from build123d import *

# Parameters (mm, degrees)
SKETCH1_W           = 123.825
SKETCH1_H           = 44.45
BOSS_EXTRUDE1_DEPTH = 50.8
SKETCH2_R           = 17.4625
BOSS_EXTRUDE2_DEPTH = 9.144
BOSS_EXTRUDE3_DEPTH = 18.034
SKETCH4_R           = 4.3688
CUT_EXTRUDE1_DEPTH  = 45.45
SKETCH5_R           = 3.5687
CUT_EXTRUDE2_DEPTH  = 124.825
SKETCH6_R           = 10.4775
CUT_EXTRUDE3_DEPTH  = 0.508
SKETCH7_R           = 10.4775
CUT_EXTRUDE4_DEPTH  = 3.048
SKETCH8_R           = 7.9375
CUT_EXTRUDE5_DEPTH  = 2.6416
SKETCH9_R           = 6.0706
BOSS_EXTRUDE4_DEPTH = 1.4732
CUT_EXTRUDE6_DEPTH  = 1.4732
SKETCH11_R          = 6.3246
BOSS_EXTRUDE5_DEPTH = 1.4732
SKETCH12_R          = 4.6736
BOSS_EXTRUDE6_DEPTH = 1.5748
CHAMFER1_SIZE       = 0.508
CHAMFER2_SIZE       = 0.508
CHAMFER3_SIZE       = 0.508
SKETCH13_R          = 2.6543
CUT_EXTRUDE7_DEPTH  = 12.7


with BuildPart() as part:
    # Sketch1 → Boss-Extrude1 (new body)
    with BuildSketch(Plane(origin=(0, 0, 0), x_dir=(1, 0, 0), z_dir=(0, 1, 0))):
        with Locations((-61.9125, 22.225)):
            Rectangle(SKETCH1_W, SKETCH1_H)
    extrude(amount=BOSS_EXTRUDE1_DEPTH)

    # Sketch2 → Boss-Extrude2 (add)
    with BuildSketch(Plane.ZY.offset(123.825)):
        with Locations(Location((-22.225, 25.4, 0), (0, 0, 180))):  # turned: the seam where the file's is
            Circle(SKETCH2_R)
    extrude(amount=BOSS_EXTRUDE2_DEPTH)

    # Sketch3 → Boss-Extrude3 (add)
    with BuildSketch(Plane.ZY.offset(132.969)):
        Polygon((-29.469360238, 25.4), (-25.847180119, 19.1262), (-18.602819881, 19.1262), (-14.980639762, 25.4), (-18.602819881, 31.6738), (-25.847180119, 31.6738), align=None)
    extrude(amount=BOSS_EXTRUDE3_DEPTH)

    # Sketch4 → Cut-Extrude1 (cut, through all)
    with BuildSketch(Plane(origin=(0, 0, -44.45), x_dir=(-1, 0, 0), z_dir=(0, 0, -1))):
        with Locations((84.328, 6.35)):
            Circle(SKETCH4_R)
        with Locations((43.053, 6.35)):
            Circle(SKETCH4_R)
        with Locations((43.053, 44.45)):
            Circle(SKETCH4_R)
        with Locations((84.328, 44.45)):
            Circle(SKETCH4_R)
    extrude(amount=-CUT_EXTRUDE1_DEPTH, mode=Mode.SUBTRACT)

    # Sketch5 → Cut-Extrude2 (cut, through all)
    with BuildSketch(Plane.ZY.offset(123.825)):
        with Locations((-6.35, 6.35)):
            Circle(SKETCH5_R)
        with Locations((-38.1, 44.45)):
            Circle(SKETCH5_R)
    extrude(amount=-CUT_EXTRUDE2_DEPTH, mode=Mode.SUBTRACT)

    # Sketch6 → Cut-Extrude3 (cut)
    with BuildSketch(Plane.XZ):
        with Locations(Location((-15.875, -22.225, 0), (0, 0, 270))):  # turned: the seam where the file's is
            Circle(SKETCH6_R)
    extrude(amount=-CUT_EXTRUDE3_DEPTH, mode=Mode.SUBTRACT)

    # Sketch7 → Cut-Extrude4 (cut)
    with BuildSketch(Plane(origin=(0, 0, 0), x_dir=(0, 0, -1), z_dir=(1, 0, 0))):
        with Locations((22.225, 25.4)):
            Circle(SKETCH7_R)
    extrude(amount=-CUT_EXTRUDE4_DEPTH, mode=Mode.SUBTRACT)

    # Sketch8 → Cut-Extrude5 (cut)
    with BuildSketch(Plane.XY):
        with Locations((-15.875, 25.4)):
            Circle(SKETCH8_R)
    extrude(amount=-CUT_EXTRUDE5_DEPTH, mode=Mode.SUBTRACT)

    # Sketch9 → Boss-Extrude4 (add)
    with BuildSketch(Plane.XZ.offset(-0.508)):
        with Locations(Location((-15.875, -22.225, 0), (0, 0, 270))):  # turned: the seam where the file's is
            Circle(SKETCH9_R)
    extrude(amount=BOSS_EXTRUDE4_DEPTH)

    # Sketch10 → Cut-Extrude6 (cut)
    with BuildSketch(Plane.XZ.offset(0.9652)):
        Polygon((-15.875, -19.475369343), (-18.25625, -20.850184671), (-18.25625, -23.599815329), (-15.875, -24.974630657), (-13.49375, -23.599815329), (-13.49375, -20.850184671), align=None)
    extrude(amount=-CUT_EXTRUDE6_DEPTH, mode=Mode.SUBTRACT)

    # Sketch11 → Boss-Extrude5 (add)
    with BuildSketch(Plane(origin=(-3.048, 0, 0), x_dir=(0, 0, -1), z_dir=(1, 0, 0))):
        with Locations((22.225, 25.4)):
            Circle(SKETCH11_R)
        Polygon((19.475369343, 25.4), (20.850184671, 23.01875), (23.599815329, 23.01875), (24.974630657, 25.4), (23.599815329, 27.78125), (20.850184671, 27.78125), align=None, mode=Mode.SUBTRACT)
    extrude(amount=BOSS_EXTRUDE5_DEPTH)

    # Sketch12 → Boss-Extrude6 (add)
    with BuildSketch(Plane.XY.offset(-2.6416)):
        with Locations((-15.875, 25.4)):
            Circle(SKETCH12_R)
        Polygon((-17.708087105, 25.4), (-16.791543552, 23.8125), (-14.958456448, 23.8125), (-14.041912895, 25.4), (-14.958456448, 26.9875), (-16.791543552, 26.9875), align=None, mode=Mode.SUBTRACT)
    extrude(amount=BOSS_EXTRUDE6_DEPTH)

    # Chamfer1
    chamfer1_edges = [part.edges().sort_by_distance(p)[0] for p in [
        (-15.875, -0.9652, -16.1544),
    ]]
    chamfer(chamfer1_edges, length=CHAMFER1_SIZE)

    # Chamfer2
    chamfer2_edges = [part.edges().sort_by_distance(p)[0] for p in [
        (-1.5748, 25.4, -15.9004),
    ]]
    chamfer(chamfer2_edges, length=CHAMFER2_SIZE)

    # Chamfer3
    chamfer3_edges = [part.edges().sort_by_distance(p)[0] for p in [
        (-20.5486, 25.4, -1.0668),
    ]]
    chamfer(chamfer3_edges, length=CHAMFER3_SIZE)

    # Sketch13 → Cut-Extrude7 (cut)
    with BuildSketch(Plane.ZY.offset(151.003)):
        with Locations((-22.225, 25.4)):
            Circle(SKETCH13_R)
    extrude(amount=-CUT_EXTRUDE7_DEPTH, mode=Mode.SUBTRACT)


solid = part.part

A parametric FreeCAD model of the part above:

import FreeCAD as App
import Part
import Sketcher
from FreeCAD import Vector
Q = App.Units.Quantity


def edges_at(feature, points):
    """Names of the edges that pass closest to the given points."""
    edges = feature.Shape.Edges
    near = lambda p: min(range(len(edges)), key=lambda i: edges[i].distToShape(Part.Vertex(*p))[0])
    return sorted({f"Edge{near(p) + 1}" for p in points})


def add_polygon(sketch, points):
    """Adds a closed chain of lines whose ends are joined by coincident constraints."""
    first, n = sketch.GeometryCount, len(points)
    for a, b in zip(points, points[1:] + points[:1]):
        sketch.addGeometry(Part.LineSegment(App.Vector(*a, 0), App.Vector(*b, 0)), False)
    for i in range(n):
        sketch.addConstraint(Sketcher.Constraint("Coincident", first + i, 2, first + (i + 1) % n, 1))

doc = App.newDocument("Part")
body = doc.addObject("PartDesign::Body", "Body")

# Sketch on XZ plane
sketch1 = doc.addObject("Sketcher::SketchObject", "Sketch")
body.addObject(sketch1)
sketch1.AttachmentSupport = (doc.XZ_Plane, [""])
sketch1.MapMode = "FlatFace"
add_polygon(sketch1, [(-124, -44), (-124, 0), (0, 0), (0, -44)])  # lines 0-3
sketch1.addConstraint(Sketcher.Constraint("Vertical", 0))
sketch1.addConstraint(Sketcher.Constraint("Horizontal", 1))
sketch1.addConstraint(Sketcher.Constraint("Vertical", 2))
sketch1.addConstraint(Sketcher.Constraint("Horizontal", 3))
sketch1.addConstraint(Sketcher.Constraint("Coincident", 1, 2, -1, 1))
sketch1.addConstraint(Sketcher.Constraint("DistanceY", 0, 1, 0, 2, Q("1.75 in")))
sketch1.addConstraint(Sketcher.Constraint("DistanceX", 1, 1, 1, 2, Q("4.875 in")))
pad1 = doc.addObject("PartDesign::Pad", "Pad")
body.addObject(pad1)
pad1.Profile = sketch1
pad1.Length = Q("2 in")
pad1.Reversed = True

# Sketch on YZ plane
sketch2 = doc.addObject("Sketcher::SketchObject", "Sketch001")
body.addObject(sketch2)
sketch2.AttachmentSupport = (doc.YZ_Plane, [""])
sketch2.MapMode = "FlatFace"
sketch2.AttachmentOffset = App.Placement(Vector(0, 0, -4.875 * 25.4), App.Rotation())
sketch2.addGeometry(Part.Circle(Vector(25, -22, 0), Vector(0, 0, 1), 17), False)
sketch2.addConstraint(Sketcher.Constraint("Diameter", 0, Q("1.375 in")))
sketch2.addConstraint(Sketcher.Constraint("DistanceX", -1, 1, 0, 3, Q("1 in")))
sketch2.addConstraint(Sketcher.Constraint("DistanceY", 0, 3, -1, 1, Q("0.875 in")))
pad2 = doc.addObject("PartDesign::Pad", "Pad001")
body.addObject(pad2)
pad2.Profile = sketch2
pad2.Length = Q("0.36 in")
pad2.Reversed = True

# Sketch on YZ plane
sketch3 = doc.addObject("Sketcher::SketchObject", "Sketch002")
body.addObject(sketch3)
sketch3.AttachmentSupport = (doc.YZ_Plane, [""])
sketch3.MapMode = "FlatFace"
sketch3.AttachmentOffset = App.Placement(Vector(0, 0, -5.235 * 25.4), App.Rotation())
add_polygon(sketch3, [(25, -29), (19, -26), (19, -19), (25, -15), (32, -19), (32, -26)])  # lines 0-5
sketch3.addConstraint(Sketcher.Constraint("Vertical", 1))
sketch3.addConstraint(Sketcher.Constraint("Vertical", 4))
sketch3.addConstraint(Sketcher.Constraint("Parallel", 0, 3))
sketch3.addConstraint(Sketcher.Constraint("Parallel", 2, 5))
sketch3.addConstraint(Sketcher.Constraint("Horizontal", 1, 2, 3, 2))
sketch3.addConstraint(Sketcher.Constraint("Horizontal", 0, 2, 4, 2))
sketch3.addConstraint(Sketcher.Constraint("Vertical", 2, 2, 5, 2))
sketch3.addConstraint(Sketcher.Constraint("DistanceX", -1, 1, 2, 2, Q("1 in")))
sketch3.addConstraint(Sketcher.Constraint("Angle", 0, Q("150 deg")))
sketch3.addConstraint(Sketcher.Constraint("DistanceX", -1, 1, 0, 2, Q("0.753 in")))
sketch3.addConstraint(Sketcher.Constraint("DistanceY", 1, 1, 1, 2, Q("7.24436 mm")))
sketch3.addConstraint(Sketcher.Constraint("DistanceY", 0, 2, -1, 1, Q("25.84718 mm")))
pad3 = doc.addObject("PartDesign::Pad", "Pad002")
body.addObject(pad3)
pad3.Profile = sketch3
pad3.Length = Q("0.71 in")
pad3.Reversed = True

# Sketch on XY plane
sketch4 = doc.addObject("Sketcher::SketchObject", "Sketch003")
body.addObject(sketch4)
sketch4.AttachmentSupport = (doc.XY_Plane, [""])
sketch4.MapMode = "FlatFace"
sketch4.AttachmentOffset = App.Placement(Vector(0, 0, -1.75 * 25.4), App.Rotation())
sketch4.addGeometry(Part.Circle(Vector(-84.3, 6.3, 0), Vector(0, 0, 1), 4.4), False)
sketch4.addGeometry(Part.Circle(Vector(-43.1, 6.3, 0), Vector(0, 0, 1), 4.4), False)
sketch4.addGeometry(Part.Circle(Vector(-43.1, 44.5, 0), Vector(0, 0, 1), 4.4), False)
sketch4.addGeometry(Part.Circle(Vector(-84.3, 44.5, 0), Vector(0, 0, 1), 4.4), False)
sketch4.addConstraint(Sketcher.Constraint("Equal", 0, 1))
sketch4.addConstraint(Sketcher.Constraint("Equal", 1, 2))
sketch4.addConstraint(Sketcher.Constraint("Equal", 2, 3))
sketch4.addConstraint(Sketcher.Constraint("Horizontal", 0, 3, 1, 3))
sketch4.addConstraint(Sketcher.Constraint("Horizontal", 2, 3, 3, 3))
sketch4.addConstraint(Sketcher.Constraint("Vertical", 1, 3, 2, 3))
sketch4.addConstraint(Sketcher.Constraint("Vertical", 0, 3, 3, 3))
sketch4.addConstraint(Sketcher.Constraint("Diameter", 0, Q("0.344 in")))
sketch4.addConstraint(Sketcher.Constraint("DistanceY", 1, 3, 2, 3, Q("1.5 in")))
sketch4.addConstraint(Sketcher.Constraint("DistanceX", 0, 3, -1, 1, Q("3.32 in")))
sketch4.addConstraint(Sketcher.Constraint("DistanceY", -1, 1, 0, 3, Q("0.25 in")))
sketch4.addConstraint(Sketcher.Constraint("DistanceX", 1, 3, -1, 1, Q("1.695 in")))
pocket1 = doc.addObject("PartDesign::Pocket", "Pocket")
body.addObject(pocket1)
pocket1.Profile = sketch4
pocket1.Type = "ThroughAll"
pocket1.Reversed = True

# Sketch on YZ plane
sketch5 = doc.addObject("Sketcher::SketchObject", "Sketch004")
body.addObject(sketch5)
sketch5.AttachmentSupport = (doc.YZ_Plane, [""])
sketch5.MapMode = "FlatFace"
sketch5.AttachmentOffset = App.Placement(Vector(0, 0, -4.875 * 25.4), App.Rotation())
sketch5.addGeometry(Part.Circle(Vector(6.3, -6.3, 0), Vector(0, 0, 1), 3.6), False)
sketch5.addGeometry(Part.Circle(Vector(44.5, -38.1, 0), Vector(0, 0, 1), 3.6), False)
sketch5.addConstraint(Sketcher.Constraint("Equal", 0, 1))
sketch5.addConstraint(Sketcher.Constraint("Diameter", 0, Q("0.281 in")))
sketch5.addConstraint(Sketcher.Constraint("DistanceY", 1, 3, -1, 1, Q("1.5 in")))
sketch5.addConstraint(Sketcher.Constraint("DistanceX", 0, 3, 1, 3, Q("1.5 in")))
sketch5.addConstraint(Sketcher.Constraint("DistanceX", -1, 1, 0, 3, Q("0.25 in")))
sketch5.addConstraint(Sketcher.Constraint("DistanceY", 0, 3, -1, 1, Q("0.25 in")))
pocket2 = doc.addObject("PartDesign::Pocket", "Pocket001")
body.addObject(pocket2)
pocket2.Profile = sketch5
pocket2.Type = "ThroughAll"
pocket2.Reversed = True

# Sketch on XZ plane
sketch6 = doc.addObject("Sketcher::SketchObject", "Sketch005")
body.addObject(sketch6)
sketch6.AttachmentSupport = (doc.XZ_Plane, [""])
sketch6.MapMode = "FlatFace"
sketch6.addGeometry(Part.Circle(Vector(-16, -22, 0), Vector(0, 0, 1), 10), False)
sketch6.addConstraint(Sketcher.Constraint("Diameter", 0, Q("0.825 in")))
sketch6.addConstraint(Sketcher.Constraint("DistanceX", 0, 3, -1, 1, Q("0.625 in")))
sketch6.addConstraint(Sketcher.Constraint("DistanceY", 0, 3, -1, 1, Q("0.875 in")))
pocket3 = doc.addObject("PartDesign::Pocket", "Pocket002")
body.addObject(pocket3)
pocket3.Profile = sketch6
pocket3.Length = Q("0.02 in")

# Sketch on YZ plane
sketch7 = doc.addObject("Sketcher::SketchObject", "Sketch006")
body.addObject(sketch7)
sketch7.AttachmentSupport = (doc.YZ_Plane, [""])
sketch7.MapMode = "FlatFace"
sketch7.addGeometry(Part.Circle(Vector(25, -22, 0), Vector(0, 0, 1), 10), False)
sketch7.addConstraint(Sketcher.Constraint("Diameter", 0, Q("0.825 in")))
sketch7.addConstraint(Sketcher.Constraint("DistanceX", -1, 1, 0, 3, Q("1 in")))
sketch7.addConstraint(Sketcher.Constraint("DistanceY", 0, 3, -1, 1, Q("0.875 in")))
pocket4 = doc.addObject("PartDesign::Pocket", "Pocket003")
body.addObject(pocket4)
pocket4.Profile = sketch7
pocket4.Length = Q("0.12 in")

# Sketch on XY plane
sketch8 = doc.addObject("Sketcher::SketchObject", "Sketch007")
body.addObject(sketch8)
sketch8.AttachmentSupport = (doc.XY_Plane, [""])
sketch8.MapMode = "FlatFace"
sketch8.addGeometry(Part.Circle(Vector(-16, 25, 0), Vector(0, 0, 1), 8), False)
sketch8.addConstraint(Sketcher.Constraint("Diameter", 0, Q("0.625 in")))
sketch8.addConstraint(Sketcher.Constraint("DistanceY", -1, 1, 0, 3, Q("1 in")))
sketch8.addConstraint(Sketcher.Constraint("DistanceX", 0, 3, -1, 1, Q("0.625 in")))
pocket5 = doc.addObject("PartDesign::Pocket", "Pocket004")
body.addObject(pocket5)
pocket5.Profile = sketch8
pocket5.Length = Q("0.104 in")

# Sketch on XZ plane
sketch9 = doc.addObject("Sketcher::SketchObject", "Sketch008")
body.addObject(sketch9)
sketch9.AttachmentSupport = (doc.XZ_Plane, [""])
sketch9.MapMode = "FlatFace"
sketch9.AttachmentOffset = App.Placement(Vector(0, 0, -0.02 * 25.4), App.Rotation())
sketch9.addGeometry(Part.Circle(Vector(-16, -22, 0), Vector(0, 0, 1), 6), False)
sketch9.addConstraint(Sketcher.Constraint("Diameter", 0, Q("0.478 in")))
sketch9.addConstraint(Sketcher.Constraint("DistanceX", 0, 3, -1, 1, Q("0.625 in")))
sketch9.addConstraint(Sketcher.Constraint("DistanceY", 0, 3, -1, 1, Q("0.875 in")))
pad4 = doc.addObject("PartDesign::Pad", "Pad003")
body.addObject(pad4)
pad4.Profile = sketch9
pad4.Length = Q("0.058 in")

# Sketch on XZ plane
sketch10 = doc.addObject("Sketcher::SketchObject", "Sketch009")
body.addObject(sketch10)
sketch10.AttachmentSupport = (doc.XZ_Plane, [""])
sketch10.MapMode = "FlatFace"
sketch10.AttachmentOffset = App.Placement(Vector(0, 0, 0.038 * 25.4), App.Rotation())
add_polygon(sketch10, [(-15.9, -19.5), (-18.3, -20.9), (-18.3, -23.6), (-15.9, -25), (-13.5, -23.6), (-13.5, -20.9)])  # lines 0-5
sketch10.addConstraint(Sketcher.Constraint("Vertical", 1))
sketch10.addConstraint(Sketcher.Constraint("Vertical", 4))
sketch10.addConstraint(Sketcher.Constraint("Parallel", 0, 3))
sketch10.addConstraint(Sketcher.Constraint("Parallel", 2, 5))
sketch10.addConstraint(Sketcher.Constraint("Horizontal", 1, 2, 3, 2))
sketch10.addConstraint(Sketcher.Constraint("Horizontal", 0, 2, 4, 2))
sketch10.addConstraint(Sketcher.Constraint("Vertical", 2, 2, 5, 2))
sketch10.addConstraint(Sketcher.Constraint("Angle", 0, Q("-150 deg")))
sketch10.addConstraint(Sketcher.Constraint("DistanceX", 0, 2, -1, 1, Q("0.71875 in")))
sketch10.addConstraint(Sketcher.Constraint("DistanceX", 2, 2, -1, 1, Q("0.625 in")))
sketch10.addConstraint(Sketcher.Constraint("DistanceY", 1, 2, 1, 1, Q("2.749631 mm")))
sketch10.addConstraint(Sketcher.Constraint("DistanceY", 2, 2, -1, 1, Q("24.974631 mm")))
pocket6 = doc.addObject("PartDesign::Pocket", "Pocket005")
body.addObject(pocket6)
pocket6.Profile = sketch10
pocket6.Length = Q("0.058 in")

# Sketch on YZ plane
sketch11 = doc.addObject("Sketcher::SketchObject", "Sketch010")
body.addObject(sketch11)
sketch11.AttachmentSupport = (doc.YZ_Plane, [""])
sketch11.MapMode = "FlatFace"
sketch11.AttachmentOffset = App.Placement(Vector(0, 0, -0.12 * 25.4), App.Rotation())
sketch11.addGeometry(Part.Circle(Vector(25.4, -22.2, 0), Vector(0, 0, 1), 6.3), False)  # 0
add_polygon(sketch11, [(23, -20.9), (25.4, -19.5), (27.8, -20.9), (27.8, -23.6), (25.4, -25), (23, -23.6)])  # lines 1-6
sketch11.addConstraint(Sketcher.Constraint("Vertical", 3))
sketch11.addConstraint(Sketcher.Constraint("Vertical", 6))
sketch11.addConstraint(Sketcher.Constraint("Parallel", 1, 4))
sketch11.addConstraint(Sketcher.Constraint("Parallel", 2, 5))
sketch11.addConstraint(Sketcher.Constraint("Horizontal", 3, 2, 5, 2))
sketch11.addConstraint(Sketcher.Constraint("Horizontal", 2, 2, 6, 2))
sketch11.addConstraint(Sketcher.Constraint("Vertical", 0, 3, 1, 2))
sketch11.addConstraint(Sketcher.Constraint("Vertical", 1, 2, 4, 2))
sketch11.addConstraint(Sketcher.Constraint("Diameter", 0, Q("0.498 in")))
sketch11.addConstraint(Sketcher.Constraint("DistanceX", -1, 1, 0, 3, Q("1 in")))
sketch11.addConstraint(Sketcher.Constraint("Angle", 1, Q("30 deg")))
sketch11.addConstraint(Sketcher.Constraint("DistanceY", 0, 3, -1, 1, Q("0.875 in")))
sketch11.addConstraint(Sketcher.Constraint("DistanceX", -1, 1, 2, 2, Q("1.09375 in")))
sketch11.addConstraint(Sketcher.Constraint("DistanceY", 3, 2, 3, 1, Q("2.749631 mm")))
sketch11.addConstraint(Sketcher.Constraint("DistanceY", 1, 2, -1, 1, Q("19.475369 mm")))
pad5 = doc.addObject("PartDesign::Pad", "Pad004")
body.addObject(pad5)
pad5.Profile = sketch11
pad5.Length = Q("0.058 in")

# Sketch on XY plane
sketch12 = doc.addObject("Sketcher::SketchObject", "Sketch011")
body.addObject(sketch12)
sketch12.AttachmentSupport = (doc.XY_Plane, [""])
sketch12.MapMode = "FlatFace"
sketch12.AttachmentOffset = App.Placement(Vector(0, 0, -0.104 * 25.4), App.Rotation())
sketch12.addGeometry(Part.Circle(Vector(-15.9, 25.4, 0), Vector(0, 0, 1), 4.7), False)  # 0
add_polygon(sketch12, [(-16.8, 23.8), (-17.7, 25.4), (-16.8, 27), (-15, 27), (-14, 25.4), (-15, 23.8)])  # lines 1-6
sketch12.addConstraint(Sketcher.Constraint("Horizontal", 3))
sketch12.addConstraint(Sketcher.Constraint("Horizontal", 6))
sketch12.addConstraint(Sketcher.Constraint("Parallel", 1, 4))
sketch12.addConstraint(Sketcher.Constraint("Parallel", 2, 5))
sketch12.addConstraint(Sketcher.Constraint("Horizontal", 0, 3, 1, 2))
sketch12.addConstraint(Sketcher.Constraint("Horizontal", 1, 2, 4, 2))
sketch12.addConstraint(Sketcher.Constraint("Vertical", 3, 2, 5, 2))
sketch12.addConstraint(Sketcher.Constraint("Vertical", 2, 2, 6, 2))
sketch12.addConstraint(Sketcher.Constraint("Diameter", 0, Q("0.368 in")))
sketch12.addConstraint(Sketcher.Constraint("DistanceY", -1, 1, 0, 3, Q("1 in")))
sketch12.addConstraint(Sketcher.Constraint("Angle", 1, Q("120 deg")))
sketch12.addConstraint(Sketcher.Constraint("DistanceX", 0, 3, -1, 1, Q("0.625 in")))
sketch12.addConstraint(Sketcher.Constraint("DistanceY", -1, 1, 2, 2, Q("1.0625 in")))
sketch12.addConstraint(Sketcher.Constraint("DistanceX", 3, 1, 3, 2, Q("1.833087 mm")))
sketch12.addConstraint(Sketcher.Constraint("DistanceX", 1, 2, -1, 1, Q("17.708087 mm")))
pad6 = doc.addObject("PartDesign::Pad", "Pad005")
body.addObject(pad6)
pad6.Profile = sketch12
pad6.Length = Q("0.062 in")
doc.recompute()

chamfer = doc.addObject("PartDesign::Chamfer", "Chamfer")
body.addObject(chamfer)
chamfer.Base = (pad6, edges_at(pad6, [(-15.875, -0.965, -16.154)]))
chamfer.Size = Q("0.02 in")
doc.recompute()

chamfer2 = doc.addObject("PartDesign::Chamfer", "Chamfer001")
body.addObject(chamfer2)
chamfer2.Base = (chamfer, edges_at(chamfer, [(-1.575, 25.4, -15.9)]))
chamfer2.Size = Q("0.02 in")
doc.recompute()

chamfer3 = doc.addObject("PartDesign::Chamfer", "Chamfer002")
body.addObject(chamfer3)
chamfer3.Base = (chamfer2, edges_at(chamfer2, [(-20.549, 25.4, -1.067)]))
chamfer3.Size = Q("0.02 in")

# Sketch on YZ plane
sketch13 = doc.addObject("Sketcher::SketchObject", "Sketch012")
body.addObject(sketch13)
sketch13.AttachmentSupport = (doc.YZ_Plane, [""])
sketch13.MapMode = "FlatFace"
sketch13.AttachmentOffset = App.Placement(Vector(0, 0, -5.945 * 25.4), App.Rotation())
sketch13.addGeometry(Part.Circle(Vector(25.4, -22.2, 0), Vector(0, 0, 1), 2.7), False)
sketch13.addConstraint(Sketcher.Constraint("Diameter", 0, Q("0.209 in")))
sketch13.addConstraint(Sketcher.Constraint("DistanceX", -1, 1, 0, 3, Q("1 in")))
sketch13.addConstraint(Sketcher.Constraint("DistanceY", 0, 3, -1, 1, Q("0.875 in")))
pocket7 = doc.addObject("PartDesign::Pocket", "Pocket006")
body.addObject(pocket7)
pocket7.Profile = sketch13
pocket7.Length = Q("0.5 in")
pocket7.Reversed = True

doc.recompute()
